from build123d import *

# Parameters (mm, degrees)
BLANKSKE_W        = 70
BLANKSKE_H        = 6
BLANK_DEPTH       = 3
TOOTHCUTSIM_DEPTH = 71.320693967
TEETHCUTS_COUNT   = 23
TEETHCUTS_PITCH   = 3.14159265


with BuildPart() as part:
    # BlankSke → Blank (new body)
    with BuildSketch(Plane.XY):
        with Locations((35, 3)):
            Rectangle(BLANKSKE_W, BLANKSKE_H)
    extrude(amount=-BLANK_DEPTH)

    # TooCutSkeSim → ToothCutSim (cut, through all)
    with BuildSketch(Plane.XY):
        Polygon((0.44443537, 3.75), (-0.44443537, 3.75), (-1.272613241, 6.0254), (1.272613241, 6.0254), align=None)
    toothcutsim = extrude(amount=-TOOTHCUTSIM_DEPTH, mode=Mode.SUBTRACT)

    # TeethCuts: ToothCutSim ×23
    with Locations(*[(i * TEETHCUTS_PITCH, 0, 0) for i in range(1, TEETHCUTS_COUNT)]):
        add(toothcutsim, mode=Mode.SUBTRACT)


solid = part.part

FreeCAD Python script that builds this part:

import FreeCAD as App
import Part
import Sketcher

V = App.Vector
Q = App.Units.Quantity

doc = App.newDocument("Part")
body = doc.addObject("PartDesign::Body", "Body")

sketch1 = doc.addObject("Sketcher::SketchObject", "Sketch")
body.addObject(sketch1)
sketch1.AttachmentSupport = (doc.XY_Plane, [""])
sketch1.MapMode = "FlatFace"
sketch1.addGeometry([
    Part.LineSegment(V(0, 6, 0), V(0, 0, 0)),
    Part.LineSegment(V(0, 0, 0), V(70, 0, 0)),
    Part.LineSegment(V(70, 0, 0), V(70, 6, 0)),
    Part.LineSegment(V(70, 6, 0), V(0, 6, 0)),
], False)
sketch1.addConstraint([
    Sketcher.Constraint("Coincident", 0, 2, 1, 1),
    Sketcher.Constraint("Coincident", 1, 2, 2, 1),
    Sketcher.Constraint("Coincident", 2, 2, 3, 1),
    Sketcher.Constraint("Coincident", 3, 2, 0, 1),
    Sketcher.Constraint("Vertical", 0),
    Sketcher.Constraint("Horizontal", 1),
    Sketcher.Constraint("Vertical", 2),
    Sketcher.Constraint("Horizontal", 3),
    Sketcher.Constraint("Coincident", 0, 2, -1, 1),
    Sketcher.Constraint("DistanceX", 1, 1, 1, 2, Q("70 mm")),
    Sketcher.Constraint("DistanceY", 0, 2, 0, 1, Q("6 mm")),
])
pad1 = doc.addObject("PartDesign::Pad", "Pad")
body.addObject(pad1)
pad1.Profile = sketch1
pad1.Length = 3
pad1.Reversed = True

sketch2 = doc.addObject("Sketcher::SketchObject", "Sketch001")
body.addObject(sketch2)
sketch2.AttachmentSupport = (doc.XY_Plane, [""])
sketch2.MapMode = "FlatFace"
sketch2.addGeometry([
    Part.LineSegment(V(-0.4, 3.8, 0), V(0.4, 3.8, 0)),
    Part.LineSegment(V(0.4, 3.8, 0), V(1.3, 6, 0)),
    Part.LineSegment(V(1.3, 6, 0), V(-1.3, 6, 0)),
    Part.LineSegment(V(-1.3, 6, 0), V(-0.4, 3.8, 0)),
], False)
sketch2.addConstraint([
    Sketcher.Constraint("Coincident", 0, 2, 1, 1),
    Sketcher.Constraint("Coincident", 1, 2, 2, 1),
    Sketcher.Constraint("Coincident", 2, 2, 3, 1),
    Sketcher.Constraint("Coincident", 3, 2, 0, 1),
    Sketcher.Constraint("Horizontal", 0),
    Sketcher.Constraint("Horizontal", 2),
    Sketcher.Constraint("Equal", 1, 3),
    Sketcher.Constraint("Angle", 1, Q("70 deg")),
    Sketcher.Constraint("DistanceY", -1, 1, 0, 2, Q("3.75 mm")),
    Sketcher.Constraint("DistanceX", 0, 1, 0, 2, Q("0.888871 mm")),
    Sketcher.Constraint("DistanceY", -1, 1, 1, 2, Q("6.0254 mm")),
    Sketcher.Constraint("DistanceX", -1, 1, 0, 2, Q("0.444435 mm")),
])
pocket1 = doc.addObject("PartDesign::Pocket", "Pocket")
body.addObject(pocket1)
pocket1.Profile = sketch2
pocket1.Type = "ThroughAll"
doc.recompute()

linearpattern = doc.addObject("PartDesign::LinearPattern", "LinearPattern")
body.addObject(linearpattern)
linearpattern.Originals = [pocket1]
linearpattern.Direction = (doc.X_Axis, [""])
linearpattern.Mode = "offset"
linearpattern.Offset = 3.141593
linearpattern.Occurrences = 23
body.Tip = linearpattern

doc.recompute()
